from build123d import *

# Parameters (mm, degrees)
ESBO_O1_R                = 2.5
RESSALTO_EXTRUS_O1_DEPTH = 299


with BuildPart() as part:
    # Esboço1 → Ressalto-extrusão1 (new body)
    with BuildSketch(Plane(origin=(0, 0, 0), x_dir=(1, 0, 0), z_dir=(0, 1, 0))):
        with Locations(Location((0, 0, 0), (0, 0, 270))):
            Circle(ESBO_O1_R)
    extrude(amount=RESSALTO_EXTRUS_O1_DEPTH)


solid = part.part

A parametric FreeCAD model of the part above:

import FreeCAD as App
import Part
import Sketcher
Q = App.Units.Quantity

doc = App.newDocument("Part")
body = doc.addObject("PartDesign::Body", "Body")

sketch1 = body.newObject("Sketcher::SketchObject", "Sketch")
sketch1.AttachmentSupport = (doc.getObject("XZ_Plane"), [""])
sketch1.MapMode = "FlatFace"
sketch1.addGeometry(Part.Circle(App.Vector(0, 0, 0), App.Vector(0, 0, 1), 2.5), False)
sketch1.addConstraint([
    Sketcher.Constraint("Coincident", 0, 3, -1, 1),
    Sketcher.Constraint("Diameter", 0, Q("5 mm")),
])
pad1 = body.newObject("PartDesign::Pad", "Pad")
pad1.Profile = sketch1
pad1.Length = 299
pad1.Reversed = True

doc.recompute()
